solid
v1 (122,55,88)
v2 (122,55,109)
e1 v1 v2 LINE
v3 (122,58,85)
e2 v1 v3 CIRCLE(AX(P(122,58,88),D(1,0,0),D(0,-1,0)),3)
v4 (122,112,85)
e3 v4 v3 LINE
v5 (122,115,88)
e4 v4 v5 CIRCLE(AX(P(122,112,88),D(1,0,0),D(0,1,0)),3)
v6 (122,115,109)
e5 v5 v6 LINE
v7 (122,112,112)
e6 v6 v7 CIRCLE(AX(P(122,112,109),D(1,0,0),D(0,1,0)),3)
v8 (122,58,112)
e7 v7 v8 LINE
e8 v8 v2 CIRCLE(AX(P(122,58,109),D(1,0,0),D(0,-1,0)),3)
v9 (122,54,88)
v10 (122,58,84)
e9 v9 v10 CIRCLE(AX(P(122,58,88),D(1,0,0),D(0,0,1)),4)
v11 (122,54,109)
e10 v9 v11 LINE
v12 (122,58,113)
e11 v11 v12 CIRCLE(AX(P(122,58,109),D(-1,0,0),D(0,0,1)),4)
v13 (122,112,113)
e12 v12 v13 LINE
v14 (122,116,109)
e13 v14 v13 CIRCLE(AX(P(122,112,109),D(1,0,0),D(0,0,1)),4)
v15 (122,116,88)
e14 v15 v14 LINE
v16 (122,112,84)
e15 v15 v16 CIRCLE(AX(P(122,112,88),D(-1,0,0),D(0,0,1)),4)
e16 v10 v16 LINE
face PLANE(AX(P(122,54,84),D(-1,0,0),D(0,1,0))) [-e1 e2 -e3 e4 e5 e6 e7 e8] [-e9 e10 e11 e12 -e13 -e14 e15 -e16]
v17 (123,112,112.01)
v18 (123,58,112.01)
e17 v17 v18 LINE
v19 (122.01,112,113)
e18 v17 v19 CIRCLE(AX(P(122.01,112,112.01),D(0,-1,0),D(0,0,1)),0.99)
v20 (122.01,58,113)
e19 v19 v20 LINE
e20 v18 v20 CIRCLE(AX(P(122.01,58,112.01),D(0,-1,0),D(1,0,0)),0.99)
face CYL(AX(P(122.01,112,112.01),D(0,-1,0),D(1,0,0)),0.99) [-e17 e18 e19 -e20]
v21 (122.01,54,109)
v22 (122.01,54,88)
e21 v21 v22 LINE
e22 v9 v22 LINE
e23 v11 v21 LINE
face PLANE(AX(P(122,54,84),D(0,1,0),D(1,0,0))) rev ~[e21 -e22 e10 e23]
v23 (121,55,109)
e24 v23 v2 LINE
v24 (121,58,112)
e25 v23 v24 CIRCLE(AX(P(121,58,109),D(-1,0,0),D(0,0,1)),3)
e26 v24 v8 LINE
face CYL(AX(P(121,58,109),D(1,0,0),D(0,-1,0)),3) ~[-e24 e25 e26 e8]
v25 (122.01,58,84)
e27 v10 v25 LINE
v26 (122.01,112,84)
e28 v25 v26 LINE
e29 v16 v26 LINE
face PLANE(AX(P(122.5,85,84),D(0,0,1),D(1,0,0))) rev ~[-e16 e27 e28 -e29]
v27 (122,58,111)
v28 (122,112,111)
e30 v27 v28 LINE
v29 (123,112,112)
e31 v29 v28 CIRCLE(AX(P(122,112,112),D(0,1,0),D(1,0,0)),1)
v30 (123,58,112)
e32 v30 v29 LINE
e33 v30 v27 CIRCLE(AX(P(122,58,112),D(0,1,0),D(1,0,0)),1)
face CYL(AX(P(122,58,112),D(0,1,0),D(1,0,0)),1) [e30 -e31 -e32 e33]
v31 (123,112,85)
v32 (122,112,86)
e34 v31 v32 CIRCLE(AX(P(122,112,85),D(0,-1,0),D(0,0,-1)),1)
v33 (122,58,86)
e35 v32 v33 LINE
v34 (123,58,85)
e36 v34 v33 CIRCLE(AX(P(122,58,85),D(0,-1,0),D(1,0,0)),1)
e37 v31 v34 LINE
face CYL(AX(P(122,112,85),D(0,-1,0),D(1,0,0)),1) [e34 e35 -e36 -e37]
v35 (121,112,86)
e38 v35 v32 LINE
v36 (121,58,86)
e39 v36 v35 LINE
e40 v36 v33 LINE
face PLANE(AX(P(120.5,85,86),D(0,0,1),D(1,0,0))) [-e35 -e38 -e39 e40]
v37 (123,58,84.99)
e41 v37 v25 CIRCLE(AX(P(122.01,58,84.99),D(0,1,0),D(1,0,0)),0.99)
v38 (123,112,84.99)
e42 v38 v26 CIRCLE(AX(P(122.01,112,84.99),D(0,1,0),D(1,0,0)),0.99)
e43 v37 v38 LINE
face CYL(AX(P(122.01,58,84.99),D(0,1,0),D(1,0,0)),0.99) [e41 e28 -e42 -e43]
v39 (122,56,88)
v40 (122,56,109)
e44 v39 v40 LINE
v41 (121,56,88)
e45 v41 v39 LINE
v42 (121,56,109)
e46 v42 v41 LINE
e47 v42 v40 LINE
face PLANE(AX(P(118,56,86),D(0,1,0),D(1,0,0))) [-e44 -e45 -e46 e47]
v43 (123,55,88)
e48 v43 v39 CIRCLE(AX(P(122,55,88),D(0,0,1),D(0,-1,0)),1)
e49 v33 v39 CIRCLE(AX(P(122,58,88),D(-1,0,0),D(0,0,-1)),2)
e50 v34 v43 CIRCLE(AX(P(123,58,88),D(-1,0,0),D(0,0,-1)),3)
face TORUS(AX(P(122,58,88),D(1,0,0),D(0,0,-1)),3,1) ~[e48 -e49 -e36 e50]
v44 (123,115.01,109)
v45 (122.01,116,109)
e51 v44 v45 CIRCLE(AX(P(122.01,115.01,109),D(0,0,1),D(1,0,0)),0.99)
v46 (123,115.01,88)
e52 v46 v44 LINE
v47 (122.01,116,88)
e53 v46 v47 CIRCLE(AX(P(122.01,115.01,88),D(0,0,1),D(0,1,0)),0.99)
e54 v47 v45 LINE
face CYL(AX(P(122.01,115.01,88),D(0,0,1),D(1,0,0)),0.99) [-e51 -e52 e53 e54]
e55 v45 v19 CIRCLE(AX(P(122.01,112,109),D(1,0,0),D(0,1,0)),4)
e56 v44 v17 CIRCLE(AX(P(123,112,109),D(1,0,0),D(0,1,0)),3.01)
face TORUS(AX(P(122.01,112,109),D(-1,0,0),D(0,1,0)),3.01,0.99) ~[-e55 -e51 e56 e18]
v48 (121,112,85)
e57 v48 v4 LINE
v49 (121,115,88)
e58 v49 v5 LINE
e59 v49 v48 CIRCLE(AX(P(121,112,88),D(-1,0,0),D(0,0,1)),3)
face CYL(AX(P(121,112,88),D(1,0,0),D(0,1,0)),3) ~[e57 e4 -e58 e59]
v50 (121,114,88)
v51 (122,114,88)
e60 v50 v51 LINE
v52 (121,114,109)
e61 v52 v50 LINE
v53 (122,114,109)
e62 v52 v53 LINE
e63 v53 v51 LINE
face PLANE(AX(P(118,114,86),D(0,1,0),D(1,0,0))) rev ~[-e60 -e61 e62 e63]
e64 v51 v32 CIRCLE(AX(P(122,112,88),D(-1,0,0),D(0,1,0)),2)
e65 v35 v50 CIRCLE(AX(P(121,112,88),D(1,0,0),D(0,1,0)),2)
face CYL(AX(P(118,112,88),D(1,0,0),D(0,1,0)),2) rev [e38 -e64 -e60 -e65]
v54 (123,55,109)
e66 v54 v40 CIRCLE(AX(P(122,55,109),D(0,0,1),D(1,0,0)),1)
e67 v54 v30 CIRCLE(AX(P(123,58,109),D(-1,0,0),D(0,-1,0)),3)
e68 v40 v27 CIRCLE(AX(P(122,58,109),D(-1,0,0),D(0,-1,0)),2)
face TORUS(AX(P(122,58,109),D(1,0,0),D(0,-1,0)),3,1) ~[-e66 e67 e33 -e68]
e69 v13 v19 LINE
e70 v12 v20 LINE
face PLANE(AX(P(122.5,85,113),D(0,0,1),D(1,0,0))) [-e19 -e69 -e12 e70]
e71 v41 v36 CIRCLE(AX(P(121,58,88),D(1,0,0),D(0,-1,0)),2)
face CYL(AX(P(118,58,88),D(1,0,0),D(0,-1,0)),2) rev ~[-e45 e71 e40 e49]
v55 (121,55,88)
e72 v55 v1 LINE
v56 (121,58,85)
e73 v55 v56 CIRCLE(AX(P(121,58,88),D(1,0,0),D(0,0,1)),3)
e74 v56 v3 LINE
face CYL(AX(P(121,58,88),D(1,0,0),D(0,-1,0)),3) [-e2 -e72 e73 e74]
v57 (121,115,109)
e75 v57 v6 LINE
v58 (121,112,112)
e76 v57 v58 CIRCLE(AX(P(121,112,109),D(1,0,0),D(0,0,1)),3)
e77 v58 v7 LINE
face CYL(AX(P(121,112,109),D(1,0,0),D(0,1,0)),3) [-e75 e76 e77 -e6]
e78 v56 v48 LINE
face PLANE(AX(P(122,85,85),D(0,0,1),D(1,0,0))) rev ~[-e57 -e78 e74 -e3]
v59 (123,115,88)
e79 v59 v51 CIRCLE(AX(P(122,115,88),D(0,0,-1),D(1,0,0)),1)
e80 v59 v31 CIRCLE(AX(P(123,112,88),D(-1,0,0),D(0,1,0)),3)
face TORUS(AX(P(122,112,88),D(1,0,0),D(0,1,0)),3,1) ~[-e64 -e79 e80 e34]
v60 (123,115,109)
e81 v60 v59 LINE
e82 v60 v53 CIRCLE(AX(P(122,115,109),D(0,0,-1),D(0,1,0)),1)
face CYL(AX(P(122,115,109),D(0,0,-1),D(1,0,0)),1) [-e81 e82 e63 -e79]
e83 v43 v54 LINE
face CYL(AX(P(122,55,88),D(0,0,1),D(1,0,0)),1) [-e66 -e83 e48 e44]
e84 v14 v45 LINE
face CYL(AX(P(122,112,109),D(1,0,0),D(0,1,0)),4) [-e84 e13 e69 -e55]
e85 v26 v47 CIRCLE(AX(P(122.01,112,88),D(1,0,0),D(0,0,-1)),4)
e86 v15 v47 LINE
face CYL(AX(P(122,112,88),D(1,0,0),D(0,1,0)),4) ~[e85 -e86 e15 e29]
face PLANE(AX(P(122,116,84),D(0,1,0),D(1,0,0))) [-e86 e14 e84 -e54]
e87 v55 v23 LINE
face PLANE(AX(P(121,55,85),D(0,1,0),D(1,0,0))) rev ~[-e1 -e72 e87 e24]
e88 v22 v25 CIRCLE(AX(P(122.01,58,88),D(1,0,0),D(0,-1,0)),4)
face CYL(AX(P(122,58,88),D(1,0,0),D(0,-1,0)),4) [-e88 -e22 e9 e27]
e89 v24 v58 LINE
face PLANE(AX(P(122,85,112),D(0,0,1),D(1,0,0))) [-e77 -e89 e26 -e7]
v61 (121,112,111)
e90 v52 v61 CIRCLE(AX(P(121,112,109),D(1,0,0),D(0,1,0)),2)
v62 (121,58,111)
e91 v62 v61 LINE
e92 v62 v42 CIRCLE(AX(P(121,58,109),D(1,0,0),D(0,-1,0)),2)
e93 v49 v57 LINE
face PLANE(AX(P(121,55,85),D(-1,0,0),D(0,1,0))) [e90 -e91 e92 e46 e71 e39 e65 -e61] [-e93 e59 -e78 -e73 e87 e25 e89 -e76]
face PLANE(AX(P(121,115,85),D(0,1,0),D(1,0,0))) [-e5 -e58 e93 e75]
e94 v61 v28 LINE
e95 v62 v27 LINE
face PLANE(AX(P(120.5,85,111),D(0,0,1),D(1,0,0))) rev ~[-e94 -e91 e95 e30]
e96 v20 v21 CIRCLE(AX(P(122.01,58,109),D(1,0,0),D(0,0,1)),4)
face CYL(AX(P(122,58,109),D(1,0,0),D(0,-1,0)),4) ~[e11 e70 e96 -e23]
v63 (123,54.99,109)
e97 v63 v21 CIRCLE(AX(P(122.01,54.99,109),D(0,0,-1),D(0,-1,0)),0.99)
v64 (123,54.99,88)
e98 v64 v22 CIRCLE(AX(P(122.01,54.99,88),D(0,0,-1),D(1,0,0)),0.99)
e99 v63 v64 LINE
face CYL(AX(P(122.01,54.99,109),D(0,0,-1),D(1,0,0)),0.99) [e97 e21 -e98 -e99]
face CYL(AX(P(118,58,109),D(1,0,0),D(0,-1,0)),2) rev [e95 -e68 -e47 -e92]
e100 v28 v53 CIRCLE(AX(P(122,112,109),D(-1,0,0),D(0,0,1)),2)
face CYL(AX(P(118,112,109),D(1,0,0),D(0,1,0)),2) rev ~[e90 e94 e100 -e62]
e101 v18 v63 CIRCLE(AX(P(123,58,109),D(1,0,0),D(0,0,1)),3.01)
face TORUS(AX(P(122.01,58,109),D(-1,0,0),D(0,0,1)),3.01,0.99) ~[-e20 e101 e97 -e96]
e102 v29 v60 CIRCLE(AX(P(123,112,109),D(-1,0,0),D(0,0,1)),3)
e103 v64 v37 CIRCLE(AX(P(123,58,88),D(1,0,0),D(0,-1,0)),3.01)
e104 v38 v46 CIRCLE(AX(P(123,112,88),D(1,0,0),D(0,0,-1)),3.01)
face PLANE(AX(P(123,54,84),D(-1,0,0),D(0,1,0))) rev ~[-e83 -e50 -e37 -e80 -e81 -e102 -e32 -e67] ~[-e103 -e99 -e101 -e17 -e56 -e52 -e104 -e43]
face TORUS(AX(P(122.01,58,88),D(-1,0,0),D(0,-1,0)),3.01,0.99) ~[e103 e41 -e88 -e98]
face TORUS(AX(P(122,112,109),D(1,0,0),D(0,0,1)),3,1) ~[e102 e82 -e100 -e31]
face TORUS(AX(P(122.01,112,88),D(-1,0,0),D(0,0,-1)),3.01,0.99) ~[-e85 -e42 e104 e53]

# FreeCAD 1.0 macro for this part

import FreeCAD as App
import Part
import Sketcher
from FreeCAD import Vector


def edges_at(feature, points):
    """Names of the edges that pass closest to the given points."""
    edges = feature.Shape.Edges
    near = lambda p: min(range(len(edges)), key=lambda i: edges[i].distToShape(Part.Vertex(*p))[0])
    return sorted({f"Edge{near(p) + 1}" for p in points})

doc = App.newDocument("Part")
body = doc.addObject("PartDesign::Body", "Body")

# Sketch on XY plane
sketch1 = body.newObject("Sketcher::SketchObject", "Sketch")
sketch1.AttachmentSupport = (doc.getObject("XY_Plane"), [""])
sketch1.MapMode = "FlatFace"
sketch1.AttachmentOffset = App.Placement(Vector(0, 0, 86), App.Rotation())
sketch1.addGeometry(Part.LineSegment(Vector(118, 114, 0), Vector(118, 56, 0)), False)
sketch1.addGeometry(Part.LineSegment(Vector(118, 56, 0), Vector(123, 56, 0)), False)
sketch1.addGeometry(Part.LineSegment(Vector(123, 56, 0), Vector(123, 114, 0)), False)
sketch1.addGeometry(Part.LineSegment(Vector(123, 114, 0), Vector(118, 114, 0)), False)
sketch1.addConstraint(Sketcher.Constraint("Coincident", 0, 2, 1, 1))
sketch1.addConstraint(Sketcher.Constraint("Coincident", 1, 2, 2, 1))
sketch1.addConstraint(Sketcher.Constraint("Coincident", 2, 2, 3, 1))
sketch1.addConstraint(Sketcher.Constraint("Coincident", 3, 2, 0, 1))
sketch1.addConstraint(Sketcher.Constraint("Vertical", 0))
sketch1.addConstraint(Sketcher.Constraint("Horizontal", 1))
sketch1.addConstraint(Sketcher.Constraint("Vertical", 2))
sketch1.addConstraint(Sketcher.Constraint("Horizontal", 3))
sketch1.addConstraint(Sketcher.Constraint("DistanceX", 1, 1, 1, 2, 5.0))
sketch1.addConstraint(Sketcher.Constraint("DistanceY", 0, 2, 0, 1, 58.0))
sketch1.addConstraint(Sketcher.Constraint("DistanceX", -1, 1, 0, 2, 118.0))
sketch1.addConstraint(Sketcher.Constraint("DistanceY", -1, 1, 0, 2, 56.0))
pad1 = body.newObject("PartDesign::Pad", "Pad")
pad1.Profile = sketch1
pad1.Length = 25
doc.recompute()

fillet = body.newObject("PartDesign::Fillet", "Fillet")
fillet.Base = (pad1, edges_at(pad1, [
    (120.5, 56, 86),
    (120.5, 56, 111),
    (120.5, 114, 86),
    (120.5, 114, 111),
]))
fillet.Radius = 2
body2 = doc.addObject("PartDesign::Body", "Body001")

# Sketch on XY plane
sketch2 = body2.newObject("Sketcher::SketchObject", "Sketch001")
sketch2.AttachmentSupport = (doc.getObject("XY_Plane001"), [""])
sketch2.MapMode = "FlatFace"
sketch2.AttachmentOffset = App.Placement(Vector(0, 0, 84), App.Rotation())
sketch2.addGeometry(Part.LineSegment(Vector(118, 116, 0), Vector(118, 54, 0)), False)
sketch2.addGeometry(Part.LineSegment(Vector(118, 54, 0), Vector(119, 54, 0)), False)
sketch2.addGeometry(Part.LineSegment(Vector(119, 54, 0), Vector(119, 116, 0)), False)
sketch2.addGeometry(Part.LineSegment(Vector(119, 116, 0), Vector(118, 116, 0)), False)
sketch2.addConstraint(Sketcher.Constraint("Coincident", 0, 2, 1, 1))
sketch2.addConstraint(Sketcher.Constraint("Coincident", 1, 2, 2, 1))
sketch2.addConstraint(Sketcher.Constraint("Coincident", 2, 2, 3, 1))
sketch2.addConstraint(Sketcher.Constraint("Coincident", 3, 2, 0, 1))
sketch2.addConstraint(Sketcher.Constraint("Vertical", 0))
sketch2.addConstraint(Sketcher.Constraint("Horizontal", 1))
sketch2.addConstraint(Sketcher.Constraint("Vertical", 2))
sketch2.addConstraint(Sketcher.Constraint("Horizontal", 3))
sketch2.addConstraint(Sketcher.Constraint("DistanceX", 1, 1, 1, 2, 1.0))
sketch2.addConstraint(Sketcher.Constraint("DistanceY", 0, 2, 0, 1, 62.0))
sketch2.addConstraint(Sketcher.Constraint("DistanceX", -1, 1, 0, 2, 118.0))
sketch2.addConstraint(Sketcher.Constraint("DistanceY", -1, 1, 0, 2, 54.0))
pad2 = body2.newObject("PartDesign::Pad", "Pad001")
pad2.Profile = sketch2
pad2.Length = 29
doc.recompute()

fillet2 = body2.newObject("PartDesign::Fillet", "Fillet001")
fillet2.Base = (pad2, edges_at(pad2, [
    (118.5, 54, 84),
    (118.5, 54, 113),
    (118.5, 116, 84),
    (118.5, 116, 113),
]))
fillet2.Radius = 4
body3 = doc.addObject("PartDesign::Body", "Body002")
doc.recompute()

body2.Placement = App.Placement(Vector(4, 0, 0), App.Rotation(Vector(0, 0, 1), 0))
boolean = body3.newObject("PartDesign::Boolean", "Boolean")
boolean.Type = "Fuse"
boolean.addObjects([body2])
body4 = doc.addObject("PartDesign::Body", "Body003")

# Sketch on XY plane
sketch3 = body4.newObject("Sketcher::SketchObject", "Sketch002")
sketch3.AttachmentSupport = (doc.getObject("XY_Plane003"), [""])
sketch3.MapMode = "FlatFace"
sketch3.AttachmentOffset = App.Placement(Vector(0, 0, 85), App.Rotation())
sketch3.addGeometry(Part.LineSegment(Vector(118, 115, 0), Vector(118, 55, 0)), False)
sketch3.addGeometry(Part.LineSegment(Vector(118, 55, 0), Vector(120, 55, 0)), False)
sketch3.addGeometry(Part.LineSegment(Vector(120, 55, 0), Vector(120, 115, 0)), False)
sketch3.addGeometry(Part.LineSegment(Vector(120, 115, 0), Vector(118, 115, 0)), False)
sketch3.addConstraint(Sketcher.Constraint("Coincident", 0, 2, 1, 1))
sketch3.addConstraint(Sketcher.Constraint("Coincident", 1, 2, 2, 1))
sketch3.addConstraint(Sketcher.Constraint("Coincident", 2, 2, 3, 1))
sketch3.addConstraint(Sketcher.Constraint("Coincident", 3, 2, 0, 1))
sketch3.addConstraint(Sketcher.Constraint("Vertical", 0))
sketch3.addConstraint(Sketcher.Constraint("Horizontal", 1))
sketch3.addConstraint(Sketcher.Constraint("Vertical", 2))
sketch3.addConstraint(Sketcher.Constraint("Horizontal", 3))
sketch3.addConstraint(Sketcher.Constraint("DistanceX", 1, 1, 1, 2, 2.0))
sketch3.addConstraint(Sketcher.Constraint("DistanceY", 0, 2, 0, 1, 60.0))
sketch3.addConstraint(Sketcher.Constraint("DistanceX", -1, 1, 0, 2, 118.0))
sketch3.addConstraint(Sketcher.Constraint("DistanceY", -1, 1, 0, 2, 55.0))
pad3 = body4.newObject("PartDesign::Pad", "Pad002")
pad3.Profile = sketch3
pad3.Length = 27
doc.recompute()

fillet3 = body4.newObject("PartDesign::Fillet", "Fillet002")
fillet3.Base = (pad3, edges_at(pad3, [
    (119, 55, 85),
    (119, 55, 112),
    (119, 115, 85),
    (119, 115, 112),
]))
fillet3.Radius = 3
body5 = doc.addObject("PartDesign::Body", "Body004")
doc.recompute()

body4.Placement = App.Placement(Vector(3, 0, 0), App.Rotation(Vector(0, 0, 1), 0))
boolean2 = body5.newObject("PartDesign::Boolean", "Boolean001")
boolean2.Type = "Fuse"
boolean2.addObjects([body4])
doc.recompute()

boolean3 = body5.newObject("PartDesign::Boolean", "Boolean002")
boolean3.Type = "Fuse"
boolean3.addObjects([body3])
doc.recompute()

boolean4 = body5.newObject("PartDesign::Boolean", "Boolean003")
boolean4.Type = "Cut"
boolean4.addObjects([body])
doc.recompute()

fillet4 = body5.newObject("PartDesign::Fillet", "Fillet003")
fillet4.Base = (boolean4, edges_at(boolean4, [(123, 85, 111), (123, 85, 86)]))
fillet4.Radius = 1
doc.recompute()

fillet5 = body5.newObject("PartDesign::Fillet", "Fillet004")
fillet5.Base = (fillet4, edges_at(fillet4, [(123, 85, 84), (123, 85, 113)]))
fillet5.Radius = 0.99

doc.recompute()
